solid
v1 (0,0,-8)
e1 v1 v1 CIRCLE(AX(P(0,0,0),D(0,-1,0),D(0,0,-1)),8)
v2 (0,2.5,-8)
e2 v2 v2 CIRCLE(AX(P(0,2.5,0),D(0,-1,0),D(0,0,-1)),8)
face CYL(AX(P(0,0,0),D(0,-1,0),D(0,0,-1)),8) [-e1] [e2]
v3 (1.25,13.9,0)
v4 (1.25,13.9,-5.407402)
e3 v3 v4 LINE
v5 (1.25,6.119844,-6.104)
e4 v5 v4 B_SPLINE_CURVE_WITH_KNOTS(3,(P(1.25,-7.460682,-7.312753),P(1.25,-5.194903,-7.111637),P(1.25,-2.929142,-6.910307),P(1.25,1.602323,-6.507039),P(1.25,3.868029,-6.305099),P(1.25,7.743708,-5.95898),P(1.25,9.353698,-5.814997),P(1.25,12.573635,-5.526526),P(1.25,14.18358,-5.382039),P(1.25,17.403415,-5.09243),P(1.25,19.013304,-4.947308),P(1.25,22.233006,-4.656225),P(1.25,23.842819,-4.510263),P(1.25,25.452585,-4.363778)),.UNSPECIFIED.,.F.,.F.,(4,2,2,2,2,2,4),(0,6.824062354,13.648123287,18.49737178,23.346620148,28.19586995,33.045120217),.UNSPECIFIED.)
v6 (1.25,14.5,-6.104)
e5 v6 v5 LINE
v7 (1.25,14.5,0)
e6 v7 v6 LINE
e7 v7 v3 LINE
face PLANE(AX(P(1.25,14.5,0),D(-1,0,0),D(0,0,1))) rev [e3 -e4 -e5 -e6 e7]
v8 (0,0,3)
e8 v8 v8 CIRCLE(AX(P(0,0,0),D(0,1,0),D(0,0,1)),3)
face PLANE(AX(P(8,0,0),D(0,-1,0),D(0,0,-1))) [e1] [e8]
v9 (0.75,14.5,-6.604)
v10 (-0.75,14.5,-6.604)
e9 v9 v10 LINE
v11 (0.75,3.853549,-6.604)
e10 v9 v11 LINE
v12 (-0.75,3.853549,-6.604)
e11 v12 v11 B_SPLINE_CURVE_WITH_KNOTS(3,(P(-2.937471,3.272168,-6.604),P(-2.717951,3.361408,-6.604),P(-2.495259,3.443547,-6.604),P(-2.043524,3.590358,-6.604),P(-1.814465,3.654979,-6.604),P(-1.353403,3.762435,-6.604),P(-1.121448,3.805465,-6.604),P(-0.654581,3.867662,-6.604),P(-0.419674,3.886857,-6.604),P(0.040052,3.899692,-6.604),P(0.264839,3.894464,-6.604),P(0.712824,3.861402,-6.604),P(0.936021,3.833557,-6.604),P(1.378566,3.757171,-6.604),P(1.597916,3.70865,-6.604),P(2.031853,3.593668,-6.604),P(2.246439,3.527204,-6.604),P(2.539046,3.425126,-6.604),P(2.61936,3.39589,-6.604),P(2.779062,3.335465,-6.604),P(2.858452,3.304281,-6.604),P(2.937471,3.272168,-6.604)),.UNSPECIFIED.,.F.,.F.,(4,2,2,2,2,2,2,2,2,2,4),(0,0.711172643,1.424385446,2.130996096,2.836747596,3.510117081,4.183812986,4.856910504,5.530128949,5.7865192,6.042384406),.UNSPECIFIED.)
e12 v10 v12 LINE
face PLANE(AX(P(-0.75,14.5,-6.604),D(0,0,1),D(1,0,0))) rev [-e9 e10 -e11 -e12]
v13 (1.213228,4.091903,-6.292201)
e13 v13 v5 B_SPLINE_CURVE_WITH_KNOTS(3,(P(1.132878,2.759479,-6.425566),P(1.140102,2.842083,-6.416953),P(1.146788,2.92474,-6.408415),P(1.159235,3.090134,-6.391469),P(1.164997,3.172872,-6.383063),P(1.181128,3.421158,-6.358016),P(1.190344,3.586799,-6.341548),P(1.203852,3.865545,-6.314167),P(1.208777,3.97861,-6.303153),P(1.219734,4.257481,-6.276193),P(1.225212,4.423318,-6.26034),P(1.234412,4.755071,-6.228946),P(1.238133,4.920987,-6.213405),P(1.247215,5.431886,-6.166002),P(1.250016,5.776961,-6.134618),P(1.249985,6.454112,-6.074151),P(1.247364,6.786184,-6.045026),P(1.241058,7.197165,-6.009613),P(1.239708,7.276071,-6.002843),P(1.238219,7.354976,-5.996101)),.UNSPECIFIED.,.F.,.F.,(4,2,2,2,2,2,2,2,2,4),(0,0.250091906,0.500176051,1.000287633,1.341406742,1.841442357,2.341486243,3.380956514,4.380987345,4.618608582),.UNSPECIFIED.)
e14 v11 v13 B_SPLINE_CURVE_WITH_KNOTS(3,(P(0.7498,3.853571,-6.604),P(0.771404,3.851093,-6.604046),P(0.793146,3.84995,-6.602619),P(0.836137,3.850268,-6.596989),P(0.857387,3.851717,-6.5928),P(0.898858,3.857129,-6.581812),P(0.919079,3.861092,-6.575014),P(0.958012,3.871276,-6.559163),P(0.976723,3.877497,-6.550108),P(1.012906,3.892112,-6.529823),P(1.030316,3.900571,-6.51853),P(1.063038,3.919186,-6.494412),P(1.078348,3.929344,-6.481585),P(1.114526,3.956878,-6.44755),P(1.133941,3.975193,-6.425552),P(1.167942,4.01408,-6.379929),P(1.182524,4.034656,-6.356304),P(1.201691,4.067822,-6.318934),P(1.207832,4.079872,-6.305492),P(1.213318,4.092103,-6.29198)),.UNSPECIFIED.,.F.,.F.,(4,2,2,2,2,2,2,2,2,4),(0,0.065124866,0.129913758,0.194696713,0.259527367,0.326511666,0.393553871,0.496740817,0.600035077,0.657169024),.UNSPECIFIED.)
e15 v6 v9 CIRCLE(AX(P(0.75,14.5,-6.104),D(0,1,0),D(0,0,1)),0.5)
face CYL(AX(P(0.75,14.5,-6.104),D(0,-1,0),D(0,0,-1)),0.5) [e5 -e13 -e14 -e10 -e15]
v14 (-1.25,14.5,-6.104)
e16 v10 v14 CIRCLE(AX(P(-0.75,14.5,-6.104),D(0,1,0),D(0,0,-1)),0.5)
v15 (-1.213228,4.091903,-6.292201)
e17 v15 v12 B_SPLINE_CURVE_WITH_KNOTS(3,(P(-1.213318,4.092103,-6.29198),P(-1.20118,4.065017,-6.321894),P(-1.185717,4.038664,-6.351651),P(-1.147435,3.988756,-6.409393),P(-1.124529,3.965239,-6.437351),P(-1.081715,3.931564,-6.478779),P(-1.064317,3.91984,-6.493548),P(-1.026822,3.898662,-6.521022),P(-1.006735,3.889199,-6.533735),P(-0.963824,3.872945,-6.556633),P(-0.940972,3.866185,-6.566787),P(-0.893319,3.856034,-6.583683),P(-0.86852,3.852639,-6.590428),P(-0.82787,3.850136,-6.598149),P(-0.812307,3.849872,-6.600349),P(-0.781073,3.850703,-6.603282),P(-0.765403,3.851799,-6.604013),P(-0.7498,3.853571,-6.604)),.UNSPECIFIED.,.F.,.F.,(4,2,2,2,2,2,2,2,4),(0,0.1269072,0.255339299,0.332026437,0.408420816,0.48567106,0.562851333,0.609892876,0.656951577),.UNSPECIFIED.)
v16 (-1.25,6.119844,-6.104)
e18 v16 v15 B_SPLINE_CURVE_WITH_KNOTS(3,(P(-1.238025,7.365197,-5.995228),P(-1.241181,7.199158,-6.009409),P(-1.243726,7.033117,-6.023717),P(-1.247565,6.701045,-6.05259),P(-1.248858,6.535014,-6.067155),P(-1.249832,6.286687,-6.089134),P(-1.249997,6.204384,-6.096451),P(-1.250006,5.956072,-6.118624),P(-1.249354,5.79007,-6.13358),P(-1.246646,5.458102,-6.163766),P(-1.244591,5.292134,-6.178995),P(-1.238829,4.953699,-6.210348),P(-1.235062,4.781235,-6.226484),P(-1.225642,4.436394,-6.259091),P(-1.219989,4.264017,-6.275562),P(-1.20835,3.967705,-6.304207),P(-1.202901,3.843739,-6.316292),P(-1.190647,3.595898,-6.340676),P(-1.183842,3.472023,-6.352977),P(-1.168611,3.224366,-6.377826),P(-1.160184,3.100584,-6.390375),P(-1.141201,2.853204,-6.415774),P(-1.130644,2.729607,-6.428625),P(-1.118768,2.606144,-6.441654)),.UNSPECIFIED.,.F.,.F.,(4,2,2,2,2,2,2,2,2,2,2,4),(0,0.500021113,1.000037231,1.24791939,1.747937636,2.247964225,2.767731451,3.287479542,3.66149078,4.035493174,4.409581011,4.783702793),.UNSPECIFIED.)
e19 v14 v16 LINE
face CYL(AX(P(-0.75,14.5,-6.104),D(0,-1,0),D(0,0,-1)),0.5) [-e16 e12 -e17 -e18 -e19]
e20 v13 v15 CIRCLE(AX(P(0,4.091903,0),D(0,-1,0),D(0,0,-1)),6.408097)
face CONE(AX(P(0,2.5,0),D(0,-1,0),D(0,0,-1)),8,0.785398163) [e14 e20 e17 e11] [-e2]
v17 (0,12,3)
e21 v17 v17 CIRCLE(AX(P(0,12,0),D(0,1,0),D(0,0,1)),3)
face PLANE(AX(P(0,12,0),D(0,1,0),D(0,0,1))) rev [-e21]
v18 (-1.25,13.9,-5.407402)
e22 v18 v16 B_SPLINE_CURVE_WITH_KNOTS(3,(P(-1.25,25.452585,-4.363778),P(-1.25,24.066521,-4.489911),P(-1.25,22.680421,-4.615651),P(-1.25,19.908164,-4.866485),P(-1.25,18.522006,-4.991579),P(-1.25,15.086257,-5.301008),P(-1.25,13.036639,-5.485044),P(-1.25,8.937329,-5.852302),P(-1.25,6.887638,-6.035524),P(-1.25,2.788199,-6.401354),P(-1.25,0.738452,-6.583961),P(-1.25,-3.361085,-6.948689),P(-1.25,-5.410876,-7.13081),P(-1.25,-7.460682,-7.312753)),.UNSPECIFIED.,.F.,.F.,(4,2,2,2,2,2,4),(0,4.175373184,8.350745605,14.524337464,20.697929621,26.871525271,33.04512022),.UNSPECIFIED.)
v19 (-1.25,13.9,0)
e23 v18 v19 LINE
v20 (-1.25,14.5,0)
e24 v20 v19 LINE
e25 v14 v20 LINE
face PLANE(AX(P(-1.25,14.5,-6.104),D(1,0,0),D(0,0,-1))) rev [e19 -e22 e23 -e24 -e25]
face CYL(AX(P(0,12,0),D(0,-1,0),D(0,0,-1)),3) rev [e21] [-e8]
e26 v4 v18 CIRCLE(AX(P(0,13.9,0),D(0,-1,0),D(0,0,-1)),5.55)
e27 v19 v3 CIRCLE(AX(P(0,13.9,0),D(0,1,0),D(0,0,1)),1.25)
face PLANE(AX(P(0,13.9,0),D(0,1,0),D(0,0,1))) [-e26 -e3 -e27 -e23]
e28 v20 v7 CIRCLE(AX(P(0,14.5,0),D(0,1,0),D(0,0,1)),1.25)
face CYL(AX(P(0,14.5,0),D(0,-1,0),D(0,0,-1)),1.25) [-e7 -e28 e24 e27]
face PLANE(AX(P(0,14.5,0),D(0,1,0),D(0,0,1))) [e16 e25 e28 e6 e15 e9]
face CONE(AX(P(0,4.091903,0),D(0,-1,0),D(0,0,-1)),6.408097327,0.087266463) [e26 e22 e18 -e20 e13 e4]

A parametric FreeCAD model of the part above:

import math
import FreeCAD as App
import Part
import Sketcher
Q = App.Units.Quantity

doc = App.newDocument("Part")
body = doc.addObject("PartDesign::Body", "Body")

# Sketch on XY plane
sketch1 = doc.addObject("Sketcher::SketchObject", "Sketch")
body.addObject(sketch1)
sketch1.AttachmentSupport = (doc.XY_Plane, [""])
sketch1.MapMode = "FlatFace"
sketch1.addGeometry([
    Part.LineSegment(App.Vector(5.5, 13.9, 0), App.Vector(0, 13.9, 0)),  # 0
    Part.LineSegment(App.Vector(0, 13.9, 0), App.Vector(0, 0, 0)),  # 1
    Part.LineSegment(App.Vector(0, 0, 0), App.Vector(8, 0, 0)),  # 2
    Part.LineSegment(App.Vector(8, 0, 0), App.Vector(8, 2.5, 0)),  # 3
    Part.LineSegment(App.Vector(8, 2.5, 0), App.Vector(6.4, 4.1, 0)),  # 4
    Part.LineSegment(App.Vector(6.4, 4.1, 0), App.Vector(5.5, 13.9, 0)),  # 5
], False)
sketch1.addConstraint([
    Sketcher.Constraint("Coincident", 0, 2, 1, 1),
    Sketcher.Constraint("Coincident", 1, 2, 2, 1),
    Sketcher.Constraint("Coincident", 2, 2, 3, 1),
    Sketcher.Constraint("Coincident", 3, 2, 4, 1),
    Sketcher.Constraint("Coincident", 4, 2, 5, 1),
    Sketcher.Constraint("Coincident", 5, 2, 0, 1),
    Sketcher.Constraint("Horizontal", 0),
    Sketcher.Constraint("Vertical", 1),
    Sketcher.Constraint("Horizontal", 2),
    Sketcher.Constraint("Vertical", 3),
    Sketcher.Constraint("Coincident", 1, 2, -1, 1),
    Sketcher.Constraint("DistanceX", 2, 1, 2, 2, Q("8 mm")),
    Sketcher.Constraint("Angle", 4, Q("135 deg")),
    Sketcher.Constraint("Angle", 5, Q("95 deg")),
    Sketcher.Constraint("DistanceY", 1, 2, 1, 1, Q("13.9 mm")),
    Sketcher.Constraint("DistanceY", 3, 1, 3, 2, Q("2.5 mm")),
    Sketcher.Constraint("DistanceX", 0, 2, 0, 1, Q("5.55 mm")),
])
revolution = doc.addObject("PartDesign::Revolution", "Revolution")
body.addObject(revolution)
revolution.Profile = sketch1
revolution.ReferenceAxis = (sketch1, ["V_Axis"])
revolution.Angle = 360

# Sketch on XZ plane
sketch2 = doc.addObject("Sketcher::SketchObject", "Sketch001")
body.addObject(sketch2)
sketch2.AttachmentSupport = (doc.XZ_Plane, [""])
sketch2.MapMode = "FlatFace"
sketch2.AttachmentOffset = App.Placement(App.Vector(0, 0, -13.9), App.Rotation())
sketch2.addGeometry([
    Part.LineSegment(App.Vector(-1.25, -6.1, 0), App.Vector(-1.25, 0, 0)),  # 0
    Part.ArcOfCircle(Part.Circle(App.Vector(0, 0, 0), App.Vector(0, 0, 1), 1.25), math.radians(0), math.radians(180)),  # 1
    Part.LineSegment(App.Vector(1.25, 0, 0), App.Vector(1.25, -6.1, 0)),  # 2
    Part.ArcOfCircle(Part.Circle(App.Vector(0.75, -6.1, 0), App.Vector(0, 0, 1), 0.5), math.radians(-90), math.radians(0)),  # 3
    Part.LineSegment(App.Vector(0.75, -6.6, 0), App.Vector(-0.75, -6.6, 0)),  # 4
    Part.ArcOfCircle(Part.Circle(App.Vector(-0.75, -6.1, 0), App.Vector(0, 0, 1), 0.5), math.radians(180), math.radians(270)),  # 5
], False)
sketch2.addConstraint([
    Sketcher.Constraint("Tangent", 0, 2, 1, 2),
    Sketcher.Constraint("Tangent", 1, 1, 2, 1),
    Sketcher.Constraint("Tangent", 2, 2, 3, 2),
    Sketcher.Constraint("Tangent", 3, 1, 4, 1),
    Sketcher.Constraint("Tangent", 4, 2, 5, 2),
    Sketcher.Constraint("Tangent", 5, 1, 0, 1),
    Sketcher.Constraint("Vertical", 0),
    Sketcher.Constraint("Vertical", 2),
    Sketcher.Constraint("Horizontal", 4),
    Sketcher.Constraint("Coincident", 1, 3, -1, 1),
    Sketcher.Constraint("Equal", 3, 5),
    Sketcher.Constraint("Radius", 3, Q("0.5 mm")),
    Sketcher.Constraint("Radius", 1, Q("1.25 mm")),
    Sketcher.Constraint("DistanceY", 0, 1, 0, 2, Q("6.104 mm")),
])
pad1 = doc.addObject("PartDesign::Pad", "Pad")
body.addObject(pad1)
pad1.Profile = sketch2
pad1.Type = "UpToFirst"

# Sketch on XZ plane
sketch3 = doc.addObject("Sketcher::SketchObject", "Sketch002")
body.addObject(sketch3)
sketch3.AttachmentSupport = (doc.XZ_Plane, [""])
sketch3.MapMode = "FlatFace"
sketch3.AttachmentOffset = App.Placement(App.Vector(0, 0, -13.9), App.Rotation())
sketch3.addGeometry([
    Part.LineSegment(App.Vector(-1.25, -6.1, 0), App.Vector(-1.25, 0, 0)),  # 0
    Part.ArcOfCircle(Part.Circle(App.Vector(0, 0, 0), App.Vector(0, 0, 1), 1.25), math.radians(0), math.radians(180)),  # 1
    Part.LineSegment(App.Vector(1.25, 0, 0), App.Vector(1.25, -6.1, 0)),  # 2
    Part.ArcOfCircle(Part.Circle(App.Vector(0.75, -6.1, 0), App.Vector(0, 0, 1), 0.5), math.radians(-90), math.radians(0)),  # 3
    Part.LineSegment(App.Vector(0.75, -6.6, 0), App.Vector(-0.75, -6.6, 0)),  # 4
    Part.ArcOfCircle(Part.Circle(App.Vector(-0.75, -6.1, 0), App.Vector(0, 0, 1), 0.5), math.radians(180), math.radians(270)),  # 5
], False)
sketch3.addConstraint([
    Sketcher.Constraint("Tangent", 0, 2, 1, 2),
    Sketcher.Constraint("Tangent", 1, 1, 2, 1),
    Sketcher.Constraint("Tangent", 2, 2, 3, 2),
    Sketcher.Constraint("Tangent", 3, 1, 4, 1),
    Sketcher.Constraint("Tangent", 4, 2, 5, 2),
    Sketcher.Constraint("Tangent", 5, 1, 0, 1),
    Sketcher.Constraint("Vertical", 0),
    Sketcher.Constraint("Vertical", 2),
    Sketcher.Constraint("Horizontal", 4),
    Sketcher.Constraint("Coincident", 1, 3, -1, 1),
    Sketcher.Constraint("Equal", 3, 5),
    Sketcher.Constraint("Radius", 3, Q("0.5 mm")),
    Sketcher.Constraint("Radius", 1, Q("1.25 mm")),
    Sketcher.Constraint("DistanceY", 0, 1, 0, 2, Q("6.104 mm")),
])
pad2 = doc.addObject("PartDesign::Pad", "Pad001")
body.addObject(pad2)
pad2.Profile = sketch3
pad2.Length = 0.6
pad2.Reversed = True

# Sketch on XZ plane
sketch4 = doc.addObject("Sketcher::SketchObject", "Sketch003")
body.addObject(sketch4)
sketch4.AttachmentSupport = (doc.XZ_Plane, [""])
sketch4.MapMode = "FlatFace"
sketch4.addGeometry(Part.Circle(App.Vector(0, 0, 0), App.Vector(0, 0, 1), 3), False)
sketch4.addConstraint([
    Sketcher.Constraint("Coincident", 0, 3, -1, 1),
    Sketcher.Constraint("Diameter", 0, Q("6 mm")),
])
pocket1 = doc.addObject("PartDesign::Pocket", "Pocket")
body.addObject(pocket1)
pocket1.Profile = sketch4
pocket1.Length = 12

doc.recompute()
